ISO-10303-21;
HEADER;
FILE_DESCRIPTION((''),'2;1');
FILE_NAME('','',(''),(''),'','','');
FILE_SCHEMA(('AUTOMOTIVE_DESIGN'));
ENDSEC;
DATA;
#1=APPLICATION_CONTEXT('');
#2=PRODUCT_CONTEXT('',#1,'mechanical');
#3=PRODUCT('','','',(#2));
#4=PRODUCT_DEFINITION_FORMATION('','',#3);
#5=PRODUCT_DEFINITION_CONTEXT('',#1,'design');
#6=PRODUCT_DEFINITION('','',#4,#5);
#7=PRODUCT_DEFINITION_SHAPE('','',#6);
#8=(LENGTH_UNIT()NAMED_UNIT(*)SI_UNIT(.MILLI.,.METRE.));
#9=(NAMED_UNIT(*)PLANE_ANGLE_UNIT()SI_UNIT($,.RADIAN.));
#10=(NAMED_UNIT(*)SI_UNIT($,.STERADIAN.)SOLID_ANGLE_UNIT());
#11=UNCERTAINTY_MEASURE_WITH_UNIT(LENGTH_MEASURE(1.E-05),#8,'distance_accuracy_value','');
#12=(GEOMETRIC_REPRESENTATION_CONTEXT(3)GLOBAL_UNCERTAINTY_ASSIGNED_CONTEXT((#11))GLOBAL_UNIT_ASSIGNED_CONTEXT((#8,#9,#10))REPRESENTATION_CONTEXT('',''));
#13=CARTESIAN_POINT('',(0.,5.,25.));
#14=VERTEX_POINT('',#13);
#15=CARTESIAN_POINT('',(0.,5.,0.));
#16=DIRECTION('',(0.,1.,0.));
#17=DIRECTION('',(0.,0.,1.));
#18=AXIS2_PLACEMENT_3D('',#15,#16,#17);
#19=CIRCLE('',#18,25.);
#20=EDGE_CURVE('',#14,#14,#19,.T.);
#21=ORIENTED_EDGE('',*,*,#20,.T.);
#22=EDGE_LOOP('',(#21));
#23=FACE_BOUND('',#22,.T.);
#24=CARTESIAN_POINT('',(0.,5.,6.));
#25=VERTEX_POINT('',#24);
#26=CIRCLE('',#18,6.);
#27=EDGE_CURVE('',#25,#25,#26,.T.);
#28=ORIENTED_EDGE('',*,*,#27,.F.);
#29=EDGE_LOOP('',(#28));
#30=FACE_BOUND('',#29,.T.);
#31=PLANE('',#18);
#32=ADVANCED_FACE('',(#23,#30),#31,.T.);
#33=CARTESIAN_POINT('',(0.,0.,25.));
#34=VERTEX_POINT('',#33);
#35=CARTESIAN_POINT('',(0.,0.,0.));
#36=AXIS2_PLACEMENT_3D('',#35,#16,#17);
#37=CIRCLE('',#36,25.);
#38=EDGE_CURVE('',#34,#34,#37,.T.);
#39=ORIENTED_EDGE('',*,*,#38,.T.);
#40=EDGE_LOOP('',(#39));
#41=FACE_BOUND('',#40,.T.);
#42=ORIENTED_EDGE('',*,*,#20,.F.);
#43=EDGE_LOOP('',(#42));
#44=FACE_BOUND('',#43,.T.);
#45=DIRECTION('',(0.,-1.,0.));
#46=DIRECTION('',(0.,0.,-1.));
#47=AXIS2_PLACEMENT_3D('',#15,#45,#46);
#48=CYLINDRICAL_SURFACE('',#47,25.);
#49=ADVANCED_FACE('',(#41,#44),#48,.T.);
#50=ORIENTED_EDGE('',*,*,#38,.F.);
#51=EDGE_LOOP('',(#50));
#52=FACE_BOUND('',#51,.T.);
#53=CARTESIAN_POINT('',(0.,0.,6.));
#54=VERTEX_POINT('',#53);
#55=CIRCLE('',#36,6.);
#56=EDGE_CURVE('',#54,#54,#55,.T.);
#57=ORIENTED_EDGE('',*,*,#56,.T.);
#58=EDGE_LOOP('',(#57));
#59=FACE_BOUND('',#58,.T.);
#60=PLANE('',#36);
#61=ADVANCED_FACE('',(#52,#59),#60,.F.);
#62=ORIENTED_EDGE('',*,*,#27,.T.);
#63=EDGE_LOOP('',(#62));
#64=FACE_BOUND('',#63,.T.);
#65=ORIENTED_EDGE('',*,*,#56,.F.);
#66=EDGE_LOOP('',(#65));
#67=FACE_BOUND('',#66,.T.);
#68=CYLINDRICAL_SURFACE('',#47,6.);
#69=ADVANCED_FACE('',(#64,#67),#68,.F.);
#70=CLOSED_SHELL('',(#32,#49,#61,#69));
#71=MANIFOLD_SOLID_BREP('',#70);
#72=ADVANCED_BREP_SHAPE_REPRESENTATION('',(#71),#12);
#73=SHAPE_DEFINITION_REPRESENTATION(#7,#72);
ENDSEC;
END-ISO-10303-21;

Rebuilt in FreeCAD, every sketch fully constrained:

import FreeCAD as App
import Part
import Sketcher

doc = App.newDocument("Part")
body = doc.addObject("PartDesign::Body", "Body")

# Sketch on XZ plane
sketch1 = body.newObject("Sketcher::SketchObject", "Sketch")
sketch1.AttachmentSupport = (doc.getObject("XZ_Plane"), [""])
sketch1.MapMode = "FlatFace"
sketch1.addGeometry([
    Part.Circle(App.Vector(0, 0, 0), App.Vector(0, 0, 1), 25),
    Part.Circle(App.Vector(0, 0, 0), App.Vector(0, 0, 1), 6),
], False)
sketch1.addConstraint([
    Sketcher.Constraint("Coincident", 0, 3, -1, 1),
    Sketcher.Constraint("Coincident", 1, 3, -1, 1),
    Sketcher.Constraint("Diameter", 0, 50.0),
    Sketcher.Constraint("Diameter", 1, 12.0),
])
pad1 = body.newObject("PartDesign::Pad", "Pad")
pad1.Profile = sketch1
pad1.Length = 5
pad1.Reversed = True

doc.recompute()
